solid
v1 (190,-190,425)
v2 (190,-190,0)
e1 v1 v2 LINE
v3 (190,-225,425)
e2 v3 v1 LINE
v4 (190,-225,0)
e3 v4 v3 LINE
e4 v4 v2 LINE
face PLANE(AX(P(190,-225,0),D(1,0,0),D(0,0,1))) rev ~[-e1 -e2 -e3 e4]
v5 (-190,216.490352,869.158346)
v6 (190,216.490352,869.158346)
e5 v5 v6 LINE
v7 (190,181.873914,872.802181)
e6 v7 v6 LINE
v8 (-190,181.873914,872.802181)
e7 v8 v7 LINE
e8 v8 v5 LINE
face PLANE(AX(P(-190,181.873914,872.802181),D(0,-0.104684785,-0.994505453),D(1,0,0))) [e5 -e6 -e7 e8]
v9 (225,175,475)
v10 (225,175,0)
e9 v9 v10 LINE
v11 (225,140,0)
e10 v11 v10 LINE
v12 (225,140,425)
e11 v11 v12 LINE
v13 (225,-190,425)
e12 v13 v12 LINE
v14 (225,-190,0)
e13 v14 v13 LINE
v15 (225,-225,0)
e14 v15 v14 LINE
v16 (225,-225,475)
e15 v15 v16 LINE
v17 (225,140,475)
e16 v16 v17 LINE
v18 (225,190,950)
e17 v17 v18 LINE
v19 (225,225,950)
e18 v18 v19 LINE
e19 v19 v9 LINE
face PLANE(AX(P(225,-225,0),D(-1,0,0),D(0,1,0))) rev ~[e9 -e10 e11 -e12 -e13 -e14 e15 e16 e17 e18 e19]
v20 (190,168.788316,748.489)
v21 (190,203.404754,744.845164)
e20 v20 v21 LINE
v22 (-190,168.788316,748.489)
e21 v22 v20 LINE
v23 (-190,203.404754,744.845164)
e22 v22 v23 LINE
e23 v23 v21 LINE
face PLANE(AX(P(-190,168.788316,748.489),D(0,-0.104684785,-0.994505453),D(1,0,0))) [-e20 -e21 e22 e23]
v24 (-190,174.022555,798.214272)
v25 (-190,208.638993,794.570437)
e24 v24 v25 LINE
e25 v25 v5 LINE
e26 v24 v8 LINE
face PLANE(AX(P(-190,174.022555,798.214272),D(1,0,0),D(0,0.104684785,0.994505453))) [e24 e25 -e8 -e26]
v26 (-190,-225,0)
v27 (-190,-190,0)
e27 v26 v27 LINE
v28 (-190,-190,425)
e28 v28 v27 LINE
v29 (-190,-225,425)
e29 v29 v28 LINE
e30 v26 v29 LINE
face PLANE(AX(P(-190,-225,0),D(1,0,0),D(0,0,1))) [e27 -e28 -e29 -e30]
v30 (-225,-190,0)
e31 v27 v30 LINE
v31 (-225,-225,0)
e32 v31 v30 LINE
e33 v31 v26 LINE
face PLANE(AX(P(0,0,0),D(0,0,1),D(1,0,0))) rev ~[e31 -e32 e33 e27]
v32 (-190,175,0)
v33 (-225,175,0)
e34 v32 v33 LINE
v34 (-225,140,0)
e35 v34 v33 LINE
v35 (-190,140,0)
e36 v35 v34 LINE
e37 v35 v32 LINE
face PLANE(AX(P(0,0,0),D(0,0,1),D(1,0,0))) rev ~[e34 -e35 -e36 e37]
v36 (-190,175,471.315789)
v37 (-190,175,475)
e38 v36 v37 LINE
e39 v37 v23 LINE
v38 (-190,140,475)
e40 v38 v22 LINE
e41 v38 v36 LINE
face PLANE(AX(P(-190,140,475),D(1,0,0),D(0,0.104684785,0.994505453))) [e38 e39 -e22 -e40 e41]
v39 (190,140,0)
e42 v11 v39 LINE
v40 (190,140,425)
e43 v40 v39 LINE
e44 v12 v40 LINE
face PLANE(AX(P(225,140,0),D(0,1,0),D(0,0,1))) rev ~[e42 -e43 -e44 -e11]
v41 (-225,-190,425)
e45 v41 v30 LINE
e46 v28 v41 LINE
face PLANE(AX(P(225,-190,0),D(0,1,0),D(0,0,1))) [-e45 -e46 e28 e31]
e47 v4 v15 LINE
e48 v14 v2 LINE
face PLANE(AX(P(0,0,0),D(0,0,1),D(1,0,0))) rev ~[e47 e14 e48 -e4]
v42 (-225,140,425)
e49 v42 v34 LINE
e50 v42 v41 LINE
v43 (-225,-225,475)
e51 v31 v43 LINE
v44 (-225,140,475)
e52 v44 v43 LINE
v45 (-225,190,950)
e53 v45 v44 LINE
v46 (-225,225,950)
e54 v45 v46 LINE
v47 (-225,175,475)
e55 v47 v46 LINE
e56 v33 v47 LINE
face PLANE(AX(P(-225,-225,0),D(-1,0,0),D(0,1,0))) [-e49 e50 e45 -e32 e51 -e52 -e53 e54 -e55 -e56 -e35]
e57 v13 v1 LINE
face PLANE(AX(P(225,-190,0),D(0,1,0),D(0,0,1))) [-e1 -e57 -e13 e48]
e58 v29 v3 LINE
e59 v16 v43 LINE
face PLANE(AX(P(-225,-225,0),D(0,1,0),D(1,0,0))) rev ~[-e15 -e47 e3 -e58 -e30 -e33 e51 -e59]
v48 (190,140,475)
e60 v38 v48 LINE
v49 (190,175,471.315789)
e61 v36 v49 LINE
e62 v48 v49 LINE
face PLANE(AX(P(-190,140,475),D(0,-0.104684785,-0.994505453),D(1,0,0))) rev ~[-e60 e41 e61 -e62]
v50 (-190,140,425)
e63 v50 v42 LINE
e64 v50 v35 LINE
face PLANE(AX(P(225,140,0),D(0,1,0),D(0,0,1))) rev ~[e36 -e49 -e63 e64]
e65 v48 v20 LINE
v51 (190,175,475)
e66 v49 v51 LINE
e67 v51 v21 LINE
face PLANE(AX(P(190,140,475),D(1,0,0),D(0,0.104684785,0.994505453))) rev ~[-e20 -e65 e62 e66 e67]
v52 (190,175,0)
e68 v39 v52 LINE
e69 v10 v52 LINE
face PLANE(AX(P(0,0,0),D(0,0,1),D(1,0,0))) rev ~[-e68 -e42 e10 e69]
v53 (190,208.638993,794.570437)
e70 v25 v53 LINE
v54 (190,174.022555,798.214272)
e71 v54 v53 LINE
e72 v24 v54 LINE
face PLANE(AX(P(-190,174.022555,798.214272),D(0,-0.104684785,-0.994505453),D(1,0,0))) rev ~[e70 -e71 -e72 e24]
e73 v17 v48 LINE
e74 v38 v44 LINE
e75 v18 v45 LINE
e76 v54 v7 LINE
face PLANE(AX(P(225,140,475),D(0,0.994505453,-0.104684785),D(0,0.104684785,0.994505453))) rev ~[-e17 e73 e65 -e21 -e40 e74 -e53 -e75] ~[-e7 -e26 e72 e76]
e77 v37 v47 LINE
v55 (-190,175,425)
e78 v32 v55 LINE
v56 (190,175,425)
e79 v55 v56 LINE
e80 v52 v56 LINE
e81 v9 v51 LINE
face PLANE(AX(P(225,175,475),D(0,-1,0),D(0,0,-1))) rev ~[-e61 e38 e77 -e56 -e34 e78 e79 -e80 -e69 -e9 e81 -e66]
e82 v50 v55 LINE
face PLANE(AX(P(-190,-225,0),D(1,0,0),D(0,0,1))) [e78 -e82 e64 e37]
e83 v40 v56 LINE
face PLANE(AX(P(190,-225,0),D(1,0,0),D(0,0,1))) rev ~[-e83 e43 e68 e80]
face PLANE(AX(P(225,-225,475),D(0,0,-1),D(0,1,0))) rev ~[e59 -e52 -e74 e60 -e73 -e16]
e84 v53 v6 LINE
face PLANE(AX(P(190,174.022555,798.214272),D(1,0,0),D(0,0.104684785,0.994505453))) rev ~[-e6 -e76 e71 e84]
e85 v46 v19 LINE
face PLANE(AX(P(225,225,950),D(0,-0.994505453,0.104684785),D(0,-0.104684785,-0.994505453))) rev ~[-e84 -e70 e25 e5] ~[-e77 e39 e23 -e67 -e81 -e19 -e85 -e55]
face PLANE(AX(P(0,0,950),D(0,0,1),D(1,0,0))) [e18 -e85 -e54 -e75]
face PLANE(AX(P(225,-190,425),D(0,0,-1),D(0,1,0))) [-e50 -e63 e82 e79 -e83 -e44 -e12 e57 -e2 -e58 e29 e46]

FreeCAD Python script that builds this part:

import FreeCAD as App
import Part
import Sketcher


def add_polygon(sketch, points):
    """Adds a closed chain of lines whose ends are joined by coincident constraints."""
    first, n = sketch.GeometryCount, len(points)
    for a, b in zip(points, points[1:] + points[:1]):
        sketch.addGeometry(Part.LineSegment(App.Vector(*a, 0), App.Vector(*b, 0)), False)
    for i in range(n):
        sketch.addConstraint(Sketcher.Constraint("Coincident", first + i, 2, first + (i + 1) % n, 1))

doc = App.newDocument("Part")
body = doc.addObject("PartDesign::Body", "Body")

sketch1 = body.newObject("Sketcher::SketchObject", "Sketch")
sketch1.AttachmentSupport = (doc.getObject("XY_Plane"), [""])
sketch1.MapMode = "FlatFace"
add_polygon(sketch1, [(-225, 225), (-225, -225), (225, -225), (225, 225)])
sketch1.addConstraint([
    Sketcher.Constraint("Vertical", 0),
    Sketcher.Constraint("Horizontal", 1),
    Sketcher.Constraint("Vertical", 2),
    Sketcher.Constraint("Horizontal", 3),
    Sketcher.Constraint("Symmetric", 0, 2, 2, 2, -1, 1),
    Sketcher.Constraint("Equal", 3, 0),
    Sketcher.Constraint("DistanceX", 1, 1, 1, 2, 450.0),
])
pad1 = body.newObject("PartDesign::Pad", "Pad")
pad1.Profile = sketch1
pad1.Length = 950

sketch2 = body.newObject("Sketcher::SketchObject", "Sketch001")
sketch2.AttachmentSupport = (doc.getObject("YZ_Plane"), [""])
sketch2.MapMode = "FlatFace"
sketch2.AttachmentOffset = App.Placement(App.Vector(0, 0, 225), App.Rotation())
add_polygon(sketch2, [(175, 475), (175, 0), (225, 0), (225, 950)])
add_polygon(sketch2, [(-225, 475), (140, 475), (190, 950), (-225, 950)])
add_polygon(sketch2, [(-190, 425), (-190, 0), (140, 0), (140, 425)])
sketch2.addConstraint([
    Sketcher.Constraint("Vertical", 0),
    Sketcher.Constraint("Horizontal", 1),
    Sketcher.Constraint("Vertical", 2),
    Sketcher.Constraint("Horizontal", 4),
    Sketcher.Constraint("Horizontal", 6),
    Sketcher.Constraint("Vertical", 7),
    Sketcher.Constraint("Vertical", 8),
    Sketcher.Constraint("Horizontal", 9),
    Sketcher.Constraint("Vertical", 10),
    Sketcher.Constraint("Horizontal", 11),
    Sketcher.Constraint("Symmetric", 2, 2, 6, 2, -2),
    Sketcher.Constraint("PointOnObject", 0, 2, -1),
    Sketcher.Constraint("PointOnObject", 8, 2, -1),
    Sketcher.Constraint("Parallel", 3, 5),
    Sketcher.Constraint("Horizontal", 3, 2, 4, 2),
    Sketcher.Constraint("Vertical", 4, 2, 9, 2),
    Sketcher.Constraint("Equal", 0, 7),
    Sketcher.Constraint("DistanceX", 1, 1, 1, 2, 50.0),
    Sketcher.Constraint("DistanceX", 4, 1, 4, 2, 365.0),
    Sketcher.Constraint("DistanceX", 9, 1, 9, 2, 330.0),
    Sketcher.Constraint("DistanceY", 0, 2, 0, 1, 475.0),
    Sketcher.Constraint("DistanceY", 8, 2, 8, 1, 425.0),
    Sketcher.Constraint("DistanceX", -1, 1, 0, 2, 175.0),
])
pocket1 = body.newObject("PartDesign::Pocket", "Pocket")
pocket1.Profile = sketch2
pocket1.Type = "ThroughAll"

sketch3 = body.newObject("Sketcher::SketchObject", "Sketch002")
sketch3.AttachmentSupport = (doc.getObject("XZ_Plane"), [""])
sketch3.MapMode = "FlatFace"
sketch3.AttachmentOffset = App.Placement(App.Vector(0, 0, 225), App.Rotation())
add_polygon(sketch3, [(-190, 425), (-190, 0), (190, 0), (190, 425)])
sketch3.addConstraint([
    Sketcher.Constraint("Vertical", 0),
    Sketcher.Constraint("Horizontal", 1),
    Sketcher.Constraint("Vertical", 2),
    Sketcher.Constraint("Horizontal", 3),
    Sketcher.Constraint("Symmetric", 0, 2, 1, 2, -1, 1),
    Sketcher.Constraint("DistanceX", 1, 1, 1, 2, 380.0),
    Sketcher.Constraint("DistanceY", 0, 2, 0, 1, 425.0),
])
pocket2 = body.newObject("PartDesign::Pocket", "Pocket001")
pocket2.Profile = sketch3
pocket2.Type = "ThroughAll"

sketch4 = body.newObject("Sketcher::SketchObject", "Sketch003")
sketch4.Placement = App.Placement(App.Vector(0, 89.013699, -9.369863), App.Rotation(App.Vector(1, 0, 0), App.Vector(0, 0.104684785, 0.994505453), App.Vector(0, -0.994505453, 0.104684785), "ZXY"))
add_polygon(sketch4, [(-190, 887), (-190, 812), (190, 812), (190, 887)])
add_polygon(sketch4, [(-190, 762), (-190, 487), (190, 487), (190, 762)])
sketch4.addConstraint([
    Sketcher.Constraint("Vertical", 0),
    Sketcher.Constraint("Horizontal", 1),
    Sketcher.Constraint("Vertical", 2),
    Sketcher.Constraint("Horizontal", 3),
    Sketcher.Constraint("Vertical", 4),
    Sketcher.Constraint("Horizontal", 5),
    Sketcher.Constraint("Vertical", 6),
    Sketcher.Constraint("Horizontal", 7),
    Sketcher.Constraint("Vertical", 3, 2, 4, 2),
    Sketcher.Constraint("Vertical", 2, 2, 5, 2),
    Sketcher.Constraint("DistanceX", 1, 1, 1, 2, 380.0),
    Sketcher.Constraint("DistanceY", 0, 2, 0, 1, 75.0),
    Sketcher.Constraint("DistanceY", 4, 2, 4, 1, 275.0),
    Sketcher.Constraint("DistanceX", 0, 2, -1, 1, 190.0),
    Sketcher.Constraint("DistanceY", 4, 2, 0, 2, 325.0),
    Sketcher.Constraint("DistanceY", -1, 1, 0, 2, 812.04596),
])
pocket3 = body.newObject("PartDesign::Pocket", "Pocket002")
pocket3.Profile = sketch4
pocket3.Type = "ThroughAll"

doc.recompute()
